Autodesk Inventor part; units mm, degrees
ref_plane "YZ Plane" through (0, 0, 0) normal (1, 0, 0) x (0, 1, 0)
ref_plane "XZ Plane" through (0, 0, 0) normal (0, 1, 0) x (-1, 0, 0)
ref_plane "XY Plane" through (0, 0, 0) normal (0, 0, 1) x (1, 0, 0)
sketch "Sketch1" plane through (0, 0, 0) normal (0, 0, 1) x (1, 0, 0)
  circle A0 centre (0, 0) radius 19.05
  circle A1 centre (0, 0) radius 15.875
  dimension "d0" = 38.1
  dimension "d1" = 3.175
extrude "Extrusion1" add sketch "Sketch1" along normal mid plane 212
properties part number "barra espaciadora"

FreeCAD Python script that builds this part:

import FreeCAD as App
import Part
import Sketcher
from FreeCAD import Vector
Q = App.Units.Quantity

doc = App.newDocument("Part")
body = doc.addObject("PartDesign::Body", "Body")

# Sketch on XY plane
sketch1 = body.newObject("Sketcher::SketchObject", "Sketch")
sketch1.AttachmentSupport = (doc.getObject("XY_Plane"), [""])
sketch1.MapMode = "FlatFace"
sketch1.addGeometry(Part.Circle(Vector(0, 0, 0), Vector(0, 0, 1), 19), False)
sketch1.addGeometry(Part.Circle(Vector(0, 0, 0), Vector(0, 0, 1), 16), False)
sketch1.addConstraint(Sketcher.Constraint("Coincident", 0, 3, -1, 1))
sketch1.addConstraint(Sketcher.Constraint("Coincident", 1, 3, -1, 1))
sketch1.addConstraint(Sketcher.Constraint("Diameter", 0, Q("1.5 in")))
sketch1.addConstraint(Sketcher.Constraint("Diameter", 1, Q("1.25 in")))
pad1 = body.newObject("PartDesign::Pad", "Pad")
pad1.Profile = sketch1
pad1.Length = 212
pad1.Midplane = True

doc.recompute()
